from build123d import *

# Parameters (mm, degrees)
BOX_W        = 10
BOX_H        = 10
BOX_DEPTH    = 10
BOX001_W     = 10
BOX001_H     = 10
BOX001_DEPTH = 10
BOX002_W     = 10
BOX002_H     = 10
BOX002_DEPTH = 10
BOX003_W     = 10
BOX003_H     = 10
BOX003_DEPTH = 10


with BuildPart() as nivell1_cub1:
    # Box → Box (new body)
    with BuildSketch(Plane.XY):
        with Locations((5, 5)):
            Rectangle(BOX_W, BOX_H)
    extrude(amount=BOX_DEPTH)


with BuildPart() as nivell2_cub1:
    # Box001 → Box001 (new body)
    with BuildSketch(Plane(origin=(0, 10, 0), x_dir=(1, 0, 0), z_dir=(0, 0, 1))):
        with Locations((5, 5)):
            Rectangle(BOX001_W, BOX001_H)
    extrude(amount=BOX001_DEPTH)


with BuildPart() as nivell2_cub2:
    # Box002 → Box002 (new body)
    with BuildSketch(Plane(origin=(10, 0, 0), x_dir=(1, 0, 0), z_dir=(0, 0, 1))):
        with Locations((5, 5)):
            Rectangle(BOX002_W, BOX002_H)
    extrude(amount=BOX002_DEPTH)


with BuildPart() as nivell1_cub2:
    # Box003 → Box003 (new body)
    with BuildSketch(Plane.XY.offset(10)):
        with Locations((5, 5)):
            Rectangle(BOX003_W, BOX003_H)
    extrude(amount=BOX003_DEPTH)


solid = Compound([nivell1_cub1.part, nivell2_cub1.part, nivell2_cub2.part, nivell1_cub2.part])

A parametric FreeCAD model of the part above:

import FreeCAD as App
import Part
import Sketcher

doc = App.newDocument("Part")
body = doc.addObject("PartDesign::Body", "Body")

sketch1 = body.newObject("Sketcher::SketchObject", "Sketch")
sketch1.AttachmentSupport = (doc.getObject("XY_Plane"), [""])
sketch1.MapMode = "FlatFace"
sketch1.addGeometry(Part.LineSegment(App.Vector(0, 10, 0), App.Vector(0, 0, 0)), False)
sketch1.addGeometry(Part.LineSegment(App.Vector(0, 0, 0), App.Vector(10, 0, 0)), False)
sketch1.addGeometry(Part.LineSegment(App.Vector(10, 0, 0), App.Vector(10, 10, 0)), False)
sketch1.addGeometry(Part.LineSegment(App.Vector(10, 10, 0), App.Vector(0, 10, 0)), False)
sketch1.addConstraint(Sketcher.Constraint("Coincident", 0, 2, 1, 1))
sketch1.addConstraint(Sketcher.Constraint("Coincident", 1, 2, 2, 1))
sketch1.addConstraint(Sketcher.Constraint("Coincident", 2, 2, 3, 1))
sketch1.addConstraint(Sketcher.Constraint("Coincident", 3, 2, 0, 1))
sketch1.addConstraint(Sketcher.Constraint("Vertical", 0))
sketch1.addConstraint(Sketcher.Constraint("Horizontal", 1))
sketch1.addConstraint(Sketcher.Constraint("Vertical", 2))
sketch1.addConstraint(Sketcher.Constraint("Horizontal", 3))
sketch1.addConstraint(Sketcher.Constraint("Coincident", 0, 2, -1, 1))
sketch1.addConstraint(Sketcher.Constraint("Equal", 3, 0))
sketch1.addConstraint(Sketcher.Constraint("DistanceX", 1, 1, 1, 2, 10.0))
pad1 = body.newObject("PartDesign::Pad", "Pad")
pad1.Profile = sketch1
pad1.Length = 10
body2 = doc.addObject("PartDesign::Body", "Body001")

sketch2 = body2.newObject("Sketcher::SketchObject", "Sketch001")
sketch2.AttachmentSupport = (doc.getObject("XY_Plane001"), [""])
sketch2.MapMode = "FlatFace"
sketch2.addGeometry(Part.LineSegment(App.Vector(0, 20, 0), App.Vector(0, 10, 0)), False)
sketch2.addGeometry(Part.LineSegment(App.Vector(0, 10, 0), App.Vector(10, 10, 0)), False)
sketch2.addGeometry(Part.LineSegment(App.Vector(10, 10, 0), App.Vector(10, 20, 0)), False)
sketch2.addGeometry(Part.LineSegment(App.Vector(10, 20, 0), App.Vector(0, 20, 0)), False)
sketch2.addConstraint(Sketcher.Constraint("Coincident", 0, 2, 1, 1))
sketch2.addConstraint(Sketcher.Constraint("Coincident", 1, 2, 2, 1))
sketch2.addConstraint(Sketcher.Constraint("Coincident", 2, 2, 3, 1))
sketch2.addConstraint(Sketcher.Constraint("Coincident", 3, 2, 0, 1))
sketch2.addConstraint(Sketcher.Constraint("Vertical", 0))
sketch2.addConstraint(Sketcher.Constraint("Horizontal", 1))
sketch2.addConstraint(Sketcher.Constraint("Vertical", 2))
sketch2.addConstraint(Sketcher.Constraint("Horizontal", 3))
sketch2.addConstraint(Sketcher.Constraint("PointOnObject", 0, 2, -2))
sketch2.addConstraint(Sketcher.Constraint("Equal", 3, 0))
sketch2.addConstraint(Sketcher.Constraint("DistanceX", 1, 1, 1, 2, 10.0))
sketch2.addConstraint(Sketcher.Constraint("DistanceY", -1, 1, 0, 2, 10.0))
pad2 = body2.newObject("PartDesign::Pad", "Pad001")
pad2.Profile = sketch2
pad2.Length = 10
body3 = doc.addObject("PartDesign::Body", "Body002")

sketch3 = body3.newObject("Sketcher::SketchObject", "Sketch002")
sketch3.AttachmentSupport = (doc.getObject("XY_Plane002"), [""])
sketch3.MapMode = "FlatFace"
sketch3.addGeometry(Part.LineSegment(App.Vector(10, 10, 0), App.Vector(10, 0, 0)), False)
sketch3.addGeometry(Part.LineSegment(App.Vector(10, 0, 0), App.Vector(20, 0, 0)), False)
sketch3.addGeometry(Part.LineSegment(App.Vector(20, 0, 0), App.Vector(20, 10, 0)), False)
sketch3.addGeometry(Part.LineSegment(App.Vector(20, 10, 0), App.Vector(10, 10, 0)), False)
sketch3.addConstraint(Sketcher.Constraint("Coincident", 0, 2, 1, 1))
sketch3.addConstraint(Sketcher.Constraint("Coincident", 1, 2, 2, 1))
sketch3.addConstraint(Sketcher.Constraint("Coincident", 2, 2, 3, 1))
sketch3.addConstraint(Sketcher.Constraint("Coincident", 3, 2, 0, 1))
sketch3.addConstraint(Sketcher.Constraint("Vertical", 0))
sketch3.addConstraint(Sketcher.Constraint("Horizontal", 1))
sketch3.addConstraint(Sketcher.Constraint("Vertical", 2))
sketch3.addConstraint(Sketcher.Constraint("Horizontal", 3))
sketch3.addConstraint(Sketcher.Constraint("PointOnObject", 0, 2, -1))
sketch3.addConstraint(Sketcher.Constraint("Equal", 3, 0))
sketch3.addConstraint(Sketcher.Constraint("DistanceX", 1, 1, 1, 2, 10.0))
sketch3.addConstraint(Sketcher.Constraint("DistanceX", -1, 1, 0, 2, 10.0))
pad3 = body3.newObject("PartDesign::Pad", "Pad002")
pad3.Profile = sketch3
pad3.Length = 10
body4 = doc.addObject("PartDesign::Body", "Body003")

sketch4 = body4.newObject("Sketcher::SketchObject", "Sketch003")
sketch4.AttachmentSupport = (doc.getObject("XY_Plane003"), [""])
sketch4.MapMode = "FlatFace"
sketch4.AttachmentOffset = App.Placement(App.Vector(0, 0, 10), App.Rotation())
sketch4.addGeometry(Part.LineSegment(App.Vector(0, 10, 0), App.Vector(0, 0, 0)), False)
sketch4.addGeometry(Part.LineSegment(App.Vector(0, 0, 0), App.Vector(10, 0, 0)), False)
sketch4.addGeometry(Part.LineSegment(App.Vector(10, 0, 0), App.Vector(10, 10, 0)), False)
sketch4.addGeometry(Part.LineSegment(App.Vector(10, 10, 0), App.Vector(0, 10, 0)), False)
sketch4.addConstraint(Sketcher.Constraint("Coincident", 0, 2, 1, 1))
sketch4.addConstraint(Sketcher.Constraint("Coincident", 1, 2, 2, 1))
sketch4.addConstraint(Sketcher.Constraint("Coincident", 2, 2, 3, 1))
sketch4.addConstraint(Sketcher.Constraint("Coincident", 3, 2, 0, 1))
sketch4.addConstraint(Sketcher.Constraint("Vertical", 0))
sketch4.addConstraint(Sketcher.Constraint("Horizontal", 1))
sketch4.addConstraint(Sketcher.Constraint("Vertical", 2))
sketch4.addConstraint(Sketcher.Constraint("Horizontal", 3))
sketch4.addConstraint(Sketcher.Constraint("Coincident", 0, 2, -1, 1))
sketch4.addConstraint(Sketcher.Constraint("Equal", 3, 0))
sketch4.addConstraint(Sketcher.Constraint("DistanceX", 1, 1, 1, 2, 10.0))
pad4 = body4.newObject("PartDesign::Pad", "Pad003")
pad4.Profile = sketch4
pad4.Length = 10

doc.recompute()
